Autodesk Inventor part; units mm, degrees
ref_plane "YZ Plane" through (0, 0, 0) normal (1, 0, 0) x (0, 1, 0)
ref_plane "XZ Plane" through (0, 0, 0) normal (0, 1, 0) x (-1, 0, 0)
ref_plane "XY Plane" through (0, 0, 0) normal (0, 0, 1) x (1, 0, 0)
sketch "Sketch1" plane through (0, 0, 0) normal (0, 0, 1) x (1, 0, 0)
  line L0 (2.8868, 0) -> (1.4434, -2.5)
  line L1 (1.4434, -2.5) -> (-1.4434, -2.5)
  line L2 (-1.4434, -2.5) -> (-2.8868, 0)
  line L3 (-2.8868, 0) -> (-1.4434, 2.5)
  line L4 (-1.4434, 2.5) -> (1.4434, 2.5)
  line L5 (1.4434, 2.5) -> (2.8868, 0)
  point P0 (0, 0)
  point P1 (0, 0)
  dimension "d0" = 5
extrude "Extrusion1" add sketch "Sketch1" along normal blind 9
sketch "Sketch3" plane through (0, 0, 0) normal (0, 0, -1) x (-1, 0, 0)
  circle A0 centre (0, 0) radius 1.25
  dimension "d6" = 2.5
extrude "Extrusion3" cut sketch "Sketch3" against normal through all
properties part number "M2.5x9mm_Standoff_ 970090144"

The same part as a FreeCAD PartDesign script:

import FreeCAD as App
import Part
import Sketcher

V = App.Vector
Q = App.Units.Quantity


def add_polygon(sketch, points):
    """Adds a closed chain of lines whose ends are joined by coincident constraints."""
    first, n = sketch.GeometryCount, len(points)
    for a, b in zip(points, points[1:] + points[:1]):
        sketch.addGeometry(Part.LineSegment(App.Vector(*a, 0), App.Vector(*b, 0)), False)
    for i in range(n):
        sketch.addConstraint(Sketcher.Constraint("Coincident", first + i, 2, first + (i + 1) % n, 1))

doc = App.newDocument("Part")
body = doc.addObject("PartDesign::Body", "Body")

# Sketch on XY plane
sketch1 = doc.addObject("Sketcher::SketchObject", "Sketch")
body.addObject(sketch1)
sketch1.AttachmentSupport = (doc.XY_Plane, [""])
sketch1.MapMode = "FlatFace"
add_polygon(sketch1, [(1.4, -2.5), (2.9, 0), (1.4, 2.5), (-1.4, 2.5), (-2.9, 0), (-1.4, -2.5)])  # lines 0-5
sketch1.addConstraint([
    Sketcher.Constraint("Horizontal", 2),
    Sketcher.Constraint("Horizontal", 5),
    Sketcher.Constraint("Symmetric", 0, 2, 3, 2, -1, 1),
    Sketcher.Constraint("Symmetric", 1, 2, 4, 2, -1, 1),
    Sketcher.Constraint("PointOnObject", 0, 2, -1),
    Sketcher.Constraint("Parallel", 0, 3),
    Sketcher.Constraint("Vertical", 2, 2, 4, 2),
    Sketcher.Constraint("DistanceY", 4, 2, 2, 2, Q("5 mm")),
    Sketcher.Constraint("Angle", 0, Q("59.9996 deg")),
    Sketcher.Constraint("DistanceX", 2, 2, 2, 1, Q("2.8868 mm")),
])
pad1 = doc.addObject("PartDesign::Pad", "Pad")
body.addObject(pad1)
pad1.Profile = sketch1
pad1.Length = 9

# Sketch on XY plane
sketch2 = doc.addObject("Sketcher::SketchObject", "Sketch001")
body.addObject(sketch2)
sketch2.AttachmentSupport = (doc.XY_Plane, [""])
sketch2.MapMode = "FlatFace"
sketch2.addGeometry(Part.Circle(V(0, 0, 0), V(0, 0, 1), 1.2), False)
sketch2.addConstraint([
    Sketcher.Constraint("Coincident", 0, 3, -1, 1),
    Sketcher.Constraint("Diameter", 0, Q("2.5 mm")),
])
pocket1 = doc.addObject("PartDesign::Pocket", "Pocket")
body.addObject(pocket1)
pocket1.Profile = sketch2
pocket1.Type = "ThroughAll"
pocket1.Reversed = True

doc.recompute()
